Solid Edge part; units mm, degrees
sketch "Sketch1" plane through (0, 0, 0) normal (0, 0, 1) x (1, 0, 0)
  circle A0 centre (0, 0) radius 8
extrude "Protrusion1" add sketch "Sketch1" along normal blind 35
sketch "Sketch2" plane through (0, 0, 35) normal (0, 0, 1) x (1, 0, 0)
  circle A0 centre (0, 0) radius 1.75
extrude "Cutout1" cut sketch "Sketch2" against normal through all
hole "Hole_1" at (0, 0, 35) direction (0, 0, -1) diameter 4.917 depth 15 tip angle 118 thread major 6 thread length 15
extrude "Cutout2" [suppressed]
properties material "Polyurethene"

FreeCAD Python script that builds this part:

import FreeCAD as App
import Part
import Sketcher
from FreeCAD import Vector

doc = App.newDocument("Part")
params = doc.addObject("Spreadsheet::Sheet", "Params")
for row, (alias, value) in enumerate([
    ("sketch1_diameter", "16 mm"),
    ("pad1_length", "35 mm"),
    ("sketch2_diameter", "3.5 mm"),
    ("hole_diameter", "4.917 mm"),
    ("hole_depth", "15 mm"),
], start=1):
    params.set(f"A{row}", alias)
    params.set(f"B{row}", "=" + value)
    params.setAlias(f"B{row}", alias)

body = doc.addObject("PartDesign::Body", "Body")

# Sketch on XY plane
sketch1 = body.newObject("Sketcher::SketchObject", "Sketch")
sketch1.AttachmentSupport = (doc.getObject("XY_Plane"), [""])
sketch1.MapMode = "FlatFace"
sketch1.addGeometry(Part.Circle(Vector(0, 0, 0), Vector(0, 0, 1), 8), False)
sketch1.addConstraint([
    Sketcher.Constraint("Coincident", 0, 3, -1, 1),
    Sketcher.Constraint("Diameter", 0, 16.0),
])
sketch1.setExpression("Constraints[1]", "Params.sketch1_diameter")
pad1 = body.newObject("PartDesign::Pad", "Pad")
pad1.Profile = sketch1
pad1.setExpression("Length", "Params.pad1_length")

# Sketch on XY plane
sketch2 = body.newObject("Sketcher::SketchObject", "Sketch001")
sketch2.AttachmentSupport = (doc.getObject("XY_Plane"), [""])
sketch2.MapMode = "FlatFace"
sketch2.AttachmentOffset = App.Placement(Vector(0, 0, 35), App.Rotation())
sketch2.addGeometry(Part.Circle(Vector(0, 0, 0), Vector(0, 0, 1), 1.8), False)
sketch2.addConstraint([
    Sketcher.Constraint("Coincident", 0, 3, -1, 1),
    Sketcher.Constraint("Diameter", 0, 3.5),
])
sketch2.setExpression("Constraints[1]", "Params.sketch2_diameter")
pocket1 = body.newObject("PartDesign::Pocket", "Pocket")
pocket1.Profile = sketch2
pocket1.Type = "ThroughAll"

# Sketch on XY plane
sketch3 = body.newObject("Sketcher::SketchObject", "Sketch002")
sketch3.AttachmentSupport = (doc.getObject("XY_Plane"), [""])
sketch3.MapMode = "FlatFace"
sketch3.AttachmentOffset = App.Placement(Vector(0, 0, 35), App.Rotation())
sketch3.addGeometry(Part.Circle(Vector(0, 0, 0), Vector(0, 0, 1), 2.5), False)
sketch3.addConstraint([
    Sketcher.Constraint("Coincident", 0, 3, -1, 1),
    Sketcher.Constraint("Diameter", 0, 4.917),
])
doc.recompute()
hole = body.newObject("PartDesign::Hole", "Hole")
hole.Profile = sketch3
hole.ThreadType = "None"
hole.setExpression("Diameter", "Params.hole_diameter")
hole.DepthType = "Dimension"
hole.setExpression("Depth", "Params.hole_depth")
hole.DrillPoint = "Angled"
hole.DrillPointAngle = 118

doc.recompute()
